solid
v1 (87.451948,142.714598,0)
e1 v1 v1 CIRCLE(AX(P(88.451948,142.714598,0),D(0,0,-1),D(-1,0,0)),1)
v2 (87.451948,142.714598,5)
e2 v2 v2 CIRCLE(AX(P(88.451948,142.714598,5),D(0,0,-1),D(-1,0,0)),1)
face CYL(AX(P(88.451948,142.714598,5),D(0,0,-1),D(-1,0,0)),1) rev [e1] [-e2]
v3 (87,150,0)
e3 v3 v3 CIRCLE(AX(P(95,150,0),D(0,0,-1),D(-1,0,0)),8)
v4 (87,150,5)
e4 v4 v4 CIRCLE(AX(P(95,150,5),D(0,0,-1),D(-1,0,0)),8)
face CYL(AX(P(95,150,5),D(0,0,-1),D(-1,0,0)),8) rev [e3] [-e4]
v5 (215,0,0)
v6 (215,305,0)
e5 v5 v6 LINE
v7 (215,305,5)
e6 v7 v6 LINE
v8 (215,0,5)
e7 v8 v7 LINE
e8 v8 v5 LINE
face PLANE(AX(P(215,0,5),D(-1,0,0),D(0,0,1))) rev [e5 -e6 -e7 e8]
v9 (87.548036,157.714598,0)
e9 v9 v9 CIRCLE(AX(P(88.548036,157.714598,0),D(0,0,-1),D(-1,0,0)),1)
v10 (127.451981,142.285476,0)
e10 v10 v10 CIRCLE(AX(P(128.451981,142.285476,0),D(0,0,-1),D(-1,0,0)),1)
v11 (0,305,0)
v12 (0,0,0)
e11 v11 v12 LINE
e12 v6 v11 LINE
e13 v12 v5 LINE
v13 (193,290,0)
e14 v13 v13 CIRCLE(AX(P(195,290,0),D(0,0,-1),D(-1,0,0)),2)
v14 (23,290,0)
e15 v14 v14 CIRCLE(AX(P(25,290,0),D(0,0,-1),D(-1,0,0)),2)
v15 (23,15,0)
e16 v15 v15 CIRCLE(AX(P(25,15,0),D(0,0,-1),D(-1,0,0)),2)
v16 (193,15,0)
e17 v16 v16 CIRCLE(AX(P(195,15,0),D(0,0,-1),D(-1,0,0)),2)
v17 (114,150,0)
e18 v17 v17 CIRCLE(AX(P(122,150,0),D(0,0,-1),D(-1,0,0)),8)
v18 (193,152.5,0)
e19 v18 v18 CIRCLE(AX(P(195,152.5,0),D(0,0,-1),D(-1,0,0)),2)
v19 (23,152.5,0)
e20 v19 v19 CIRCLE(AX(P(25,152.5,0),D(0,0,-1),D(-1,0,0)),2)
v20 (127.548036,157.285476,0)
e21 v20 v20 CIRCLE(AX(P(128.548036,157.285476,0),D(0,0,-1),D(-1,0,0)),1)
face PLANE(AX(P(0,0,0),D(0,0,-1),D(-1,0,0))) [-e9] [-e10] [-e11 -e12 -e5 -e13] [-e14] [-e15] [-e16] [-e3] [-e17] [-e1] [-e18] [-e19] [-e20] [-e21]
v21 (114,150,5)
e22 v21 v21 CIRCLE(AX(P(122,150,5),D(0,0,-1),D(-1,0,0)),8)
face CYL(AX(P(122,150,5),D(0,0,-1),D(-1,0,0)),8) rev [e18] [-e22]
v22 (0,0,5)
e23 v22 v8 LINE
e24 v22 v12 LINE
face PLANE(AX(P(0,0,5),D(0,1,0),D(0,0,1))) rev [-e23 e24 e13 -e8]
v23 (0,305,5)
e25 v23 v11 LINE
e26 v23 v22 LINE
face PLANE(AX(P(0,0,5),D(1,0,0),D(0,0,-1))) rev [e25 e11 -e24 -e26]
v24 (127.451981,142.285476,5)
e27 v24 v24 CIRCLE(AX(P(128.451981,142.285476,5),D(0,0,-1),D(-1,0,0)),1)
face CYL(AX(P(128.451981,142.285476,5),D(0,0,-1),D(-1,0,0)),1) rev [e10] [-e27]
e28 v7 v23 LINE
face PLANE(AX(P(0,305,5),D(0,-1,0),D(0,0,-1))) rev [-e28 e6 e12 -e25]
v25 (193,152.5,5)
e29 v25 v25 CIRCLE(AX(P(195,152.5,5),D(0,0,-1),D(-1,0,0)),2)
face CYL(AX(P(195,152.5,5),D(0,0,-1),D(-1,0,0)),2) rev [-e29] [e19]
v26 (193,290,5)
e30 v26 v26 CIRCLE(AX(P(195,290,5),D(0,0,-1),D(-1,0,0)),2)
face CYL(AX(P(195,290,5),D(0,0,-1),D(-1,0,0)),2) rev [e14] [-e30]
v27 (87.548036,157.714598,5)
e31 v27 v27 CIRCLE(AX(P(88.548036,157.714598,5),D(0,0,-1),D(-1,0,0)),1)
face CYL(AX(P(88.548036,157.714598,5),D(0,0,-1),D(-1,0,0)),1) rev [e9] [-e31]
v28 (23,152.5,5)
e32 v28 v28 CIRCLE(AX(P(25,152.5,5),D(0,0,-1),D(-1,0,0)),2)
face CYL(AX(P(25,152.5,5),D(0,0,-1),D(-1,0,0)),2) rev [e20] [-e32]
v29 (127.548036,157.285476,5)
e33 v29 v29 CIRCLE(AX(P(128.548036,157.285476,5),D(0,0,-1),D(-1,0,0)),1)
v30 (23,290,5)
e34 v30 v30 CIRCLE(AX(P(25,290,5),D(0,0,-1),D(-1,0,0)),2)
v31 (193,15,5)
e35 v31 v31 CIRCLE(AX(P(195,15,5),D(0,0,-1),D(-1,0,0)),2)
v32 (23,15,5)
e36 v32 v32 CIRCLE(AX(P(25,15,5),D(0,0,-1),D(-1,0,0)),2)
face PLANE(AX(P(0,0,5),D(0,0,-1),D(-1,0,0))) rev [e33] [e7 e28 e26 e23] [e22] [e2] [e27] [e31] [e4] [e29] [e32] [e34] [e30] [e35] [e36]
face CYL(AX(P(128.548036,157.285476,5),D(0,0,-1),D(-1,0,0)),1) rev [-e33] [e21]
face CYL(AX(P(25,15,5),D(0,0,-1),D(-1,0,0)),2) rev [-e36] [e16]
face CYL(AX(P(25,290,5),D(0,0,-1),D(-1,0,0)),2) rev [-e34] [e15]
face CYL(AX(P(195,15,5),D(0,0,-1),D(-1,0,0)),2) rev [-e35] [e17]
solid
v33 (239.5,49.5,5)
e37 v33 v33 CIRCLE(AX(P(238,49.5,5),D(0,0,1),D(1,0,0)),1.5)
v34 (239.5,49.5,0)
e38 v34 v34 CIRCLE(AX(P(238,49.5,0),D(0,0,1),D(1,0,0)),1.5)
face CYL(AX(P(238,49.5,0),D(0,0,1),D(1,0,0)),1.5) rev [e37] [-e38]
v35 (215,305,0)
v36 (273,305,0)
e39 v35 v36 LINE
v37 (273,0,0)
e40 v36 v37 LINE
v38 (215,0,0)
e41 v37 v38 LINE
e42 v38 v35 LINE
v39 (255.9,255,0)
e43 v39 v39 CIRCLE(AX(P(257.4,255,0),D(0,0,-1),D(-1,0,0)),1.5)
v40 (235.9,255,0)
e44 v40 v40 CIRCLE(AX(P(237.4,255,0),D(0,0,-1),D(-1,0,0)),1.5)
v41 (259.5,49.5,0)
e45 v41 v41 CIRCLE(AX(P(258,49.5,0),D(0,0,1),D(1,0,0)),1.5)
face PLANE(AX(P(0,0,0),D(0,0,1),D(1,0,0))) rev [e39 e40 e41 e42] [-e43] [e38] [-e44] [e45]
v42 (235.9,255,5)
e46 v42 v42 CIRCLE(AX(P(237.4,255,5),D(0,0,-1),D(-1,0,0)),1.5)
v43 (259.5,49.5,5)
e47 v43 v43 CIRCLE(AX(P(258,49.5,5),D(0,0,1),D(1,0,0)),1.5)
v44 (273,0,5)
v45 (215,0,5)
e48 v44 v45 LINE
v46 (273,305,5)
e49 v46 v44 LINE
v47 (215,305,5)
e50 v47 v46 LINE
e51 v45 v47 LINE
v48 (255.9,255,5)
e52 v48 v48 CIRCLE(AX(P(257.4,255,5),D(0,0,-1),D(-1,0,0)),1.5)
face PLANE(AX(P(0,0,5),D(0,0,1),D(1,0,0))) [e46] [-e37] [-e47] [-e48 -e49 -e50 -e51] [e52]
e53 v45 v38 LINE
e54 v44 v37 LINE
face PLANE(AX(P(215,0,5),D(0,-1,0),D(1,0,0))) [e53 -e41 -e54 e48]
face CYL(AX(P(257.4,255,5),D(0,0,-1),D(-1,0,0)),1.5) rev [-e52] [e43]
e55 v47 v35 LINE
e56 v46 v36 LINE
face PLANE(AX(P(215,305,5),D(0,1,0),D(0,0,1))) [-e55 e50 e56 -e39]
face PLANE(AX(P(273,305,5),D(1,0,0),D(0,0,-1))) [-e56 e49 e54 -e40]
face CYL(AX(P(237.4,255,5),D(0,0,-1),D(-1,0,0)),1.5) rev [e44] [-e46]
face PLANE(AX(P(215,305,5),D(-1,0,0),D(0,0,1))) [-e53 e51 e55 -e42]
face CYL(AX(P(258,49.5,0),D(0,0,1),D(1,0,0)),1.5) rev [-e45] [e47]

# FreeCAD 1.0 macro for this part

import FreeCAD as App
import Part
import Sketcher
from FreeCAD import Vector
Q = App.Units.Quantity


def add_polygon(sketch, points):
    """Adds a closed chain of lines whose ends are joined by coincident constraints."""
    first, n = sketch.GeometryCount, len(points)
    for a, b in zip(points, points[1:] + points[:1]):
        sketch.addGeometry(Part.LineSegment(App.Vector(*a, 0), App.Vector(*b, 0)), False)
    for i in range(n):
        sketch.addConstraint(Sketcher.Constraint("Coincident", first + i, 2, first + (i + 1) % n, 1))

doc = App.newDocument("Part")
body = doc.addObject("PartDesign::Body", "Body")

sketch1 = doc.addObject("Sketcher::SketchObject", "Sketch")
body.addObject(sketch1)
sketch1.AttachmentSupport = (doc.XY_Plane, [""])
sketch1.MapMode = "FlatFace"
add_polygon(sketch1, [(0, 305), (0, 0), (215, 0), (215, 305)])
sketch1.addConstraint(Sketcher.Constraint("Vertical", 0))
sketch1.addConstraint(Sketcher.Constraint("Horizontal", 1))
sketch1.addConstraint(Sketcher.Constraint("Vertical", 2))
sketch1.addConstraint(Sketcher.Constraint("Horizontal", 3))
sketch1.addConstraint(Sketcher.Constraint("Coincident", 0, 2, -1, 1))
sketch1.addConstraint(Sketcher.Constraint("DistanceX", 1, 1, 1, 2, Q("215 mm")))
sketch1.addConstraint(Sketcher.Constraint("DistanceY", 0, 2, 0, 1, Q("305 mm")))
pad1 = doc.addObject("PartDesign::Pad", "Pad")
body.addObject(pad1)
pad1.Profile = sketch1
pad1.Length = 5

sketch2 = doc.addObject("Sketcher::SketchObject", "Sketch001")
body.addObject(sketch2)
sketch2.AttachmentSupport = (doc.XY_Plane, [""])
sketch2.MapMode = "FlatFace"
sketch2.addGeometry(Part.Circle(Vector(195, 290, 0), Vector(0, 0, 1), 2), False)
sketch2.addGeometry(Part.Circle(Vector(25, 290, 0), Vector(0, 0, 1), 2), False)
sketch2.addGeometry(Part.Circle(Vector(25, 15, 0), Vector(0, 0, 1), 2), False)
sketch2.addGeometry(Part.Circle(Vector(195, 15, 0), Vector(0, 0, 1), 2), False)
sketch2.addGeometry(Part.Circle(Vector(195, 152.5, 0), Vector(0, 0, 1), 2), False)
sketch2.addGeometry(Part.Circle(Vector(25, 152.5, 0), Vector(0, 0, 1), 2), False)
sketch2.addConstraint(Sketcher.Constraint("Equal", 0, 1))
sketch2.addConstraint(Sketcher.Constraint("Equal", 1, 2))
sketch2.addConstraint(Sketcher.Constraint("Equal", 2, 3))
sketch2.addConstraint(Sketcher.Constraint("Equal", 3, 4))
sketch2.addConstraint(Sketcher.Constraint("Equal", 4, 5))
sketch2.addConstraint(Sketcher.Constraint("Horizontal", 0, 3, 1, 3))
sketch2.addConstraint(Sketcher.Constraint("Horizontal", 2, 3, 3, 3))
sketch2.addConstraint(Sketcher.Constraint("Horizontal", 4, 3, 5, 3))
sketch2.addConstraint(Sketcher.Constraint("Vertical", 1, 3, 2, 3))
sketch2.addConstraint(Sketcher.Constraint("Vertical", 0, 3, 3, 3))
sketch2.addConstraint(Sketcher.Constraint("Vertical", 3, 3, 4, 3))
sketch2.addConstraint(Sketcher.Constraint("Vertical", 2, 3, 5, 3))
sketch2.addConstraint(Sketcher.Constraint("Diameter", 0, Q("4 mm")))
sketch2.addConstraint(Sketcher.Constraint("DistanceX", -1, 1, 0, 3, Q("195 mm")))
sketch2.addConstraint(Sketcher.Constraint("DistanceY", -1, 1, 0, 3, Q("290 mm")))
sketch2.addConstraint(Sketcher.Constraint("DistanceX", -1, 1, 1, 3, Q("25 mm")))
sketch2.addConstraint(Sketcher.Constraint("DistanceY", -1, 1, 2, 3, Q("15 mm")))
sketch2.addConstraint(Sketcher.Constraint("DistanceY", -1, 1, 4, 3, Q("152.5 mm")))
pocket1 = doc.addObject("PartDesign::Pocket", "Pocket")
body.addObject(pocket1)
pocket1.Profile = sketch2
pocket1.Length = 5
pocket1.Reversed = True

sketch3 = doc.addObject("Sketcher::SketchObject", "Sketch002")
body.addObject(sketch3)
sketch3.AttachmentSupport = (doc.XY_Plane, [""])
sketch3.MapMode = "FlatFace"
sketch3.addGeometry(Part.Circle(Vector(122, 150, 0), Vector(0, 0, 1), 8), False)
sketch3.addGeometry(Part.Circle(Vector(95, 150, 0), Vector(0, 0, 1), 8), False)
sketch3.addConstraint(Sketcher.Constraint("Equal", 0, 1))
sketch3.addConstraint(Sketcher.Constraint("Horizontal", 0, 3, 1, 3))
sketch3.addConstraint(Sketcher.Constraint("Diameter", 0, Q("16 mm")))
sketch3.addConstraint(Sketcher.Constraint("DistanceX", -1, 1, 0, 3, Q("122 mm")))
sketch3.addConstraint(Sketcher.Constraint("DistanceY", -1, 1, 0, 3, Q("150 mm")))
sketch3.addConstraint(Sketcher.Constraint("DistanceX", -1, 1, 1, 3, Q("95 mm")))
pocket2 = doc.addObject("PartDesign::Pocket", "Pocket001")
body.addObject(pocket2)
pocket2.Profile = sketch3
pocket2.Type = "ThroughAll"
pocket2.Reversed = True

sketch4 = doc.addObject("Sketcher::SketchObject", "Sketch003")
body.addObject(sketch4)
sketch4.AttachmentSupport = (doc.XY_Plane, [""])
sketch4.MapMode = "FlatFace"
sketch4.addGeometry(Part.Circle(Vector(128.5, 157.3, 0), Vector(0, 0, 1), 1), False)
sketch4.addGeometry(Part.Circle(Vector(128.5, 142.3, 0), Vector(0, 0, 1), 1), False)
sketch4.addGeometry(Part.Circle(Vector(88.5, 157.7, 0), Vector(0, 0, 1), 1), False)
sketch4.addGeometry(Part.Circle(Vector(88.5, 142.7, 0), Vector(0, 0, 1), 1), False)
sketch4.addConstraint(Sketcher.Constraint("Equal", 0, 1))
sketch4.addConstraint(Sketcher.Constraint("Equal", 1, 2))
sketch4.addConstraint(Sketcher.Constraint("Equal", 2, 3))
sketch4.addConstraint(Sketcher.Constraint("Diameter", 0, Q("2 mm")))
sketch4.addConstraint(Sketcher.Constraint("DistanceY", 1, 3, 0, 3, Q("15 mm")))
sketch4.addConstraint(Sketcher.Constraint("DistanceX", 2, 3, 0, 3, Q("40 mm")))
sketch4.addConstraint(Sketcher.Constraint("DistanceY", 3, 3, 2, 3, Q("15 mm")))
sketch4.addConstraint(Sketcher.Constraint("DistanceY", -1, 1, 2, 3, Q("157.714598 mm")))
sketch4.addConstraint(Sketcher.Constraint("DistanceX", -1, 1, 1, 3, Q("128.451981 mm")))
sketch4.addConstraint(Sketcher.Constraint("DistanceX", 3, 3, 2, 3, Q("0.096089 mm")))
sketch4.addConstraint(Sketcher.Constraint("DistanceX", -1, 1, 0, 3, Q("128.548036 mm")))
sketch4.addConstraint(Sketcher.Constraint("DistanceY", -1, 1, 0, 3, Q("157.285476 mm")))
pocket3 = doc.addObject("PartDesign::Pocket", "Pocket002")
body.addObject(pocket3)
pocket3.Profile = sketch4
pocket3.Type = "ThroughAll"
pocket3.Reversed = True
body2 = doc.addObject("PartDesign::Body", "Body001")

sketch5 = doc.addObject("Sketcher::SketchObject", "Sketch004")
body2.addObject(sketch5)
sketch5.AttachmentSupport = (doc.getObject("XY_Plane001"), [""])
sketch5.MapMode = "FlatFace"
add_polygon(sketch5, [(273, 305), (273, 0), (215, 0), (215, 305)])
sketch5.addConstraint(Sketcher.Constraint("Vertical", 0))
sketch5.addConstraint(Sketcher.Constraint("Horizontal", 1))
sketch5.addConstraint(Sketcher.Constraint("Vertical", 2))
sketch5.addConstraint(Sketcher.Constraint("Horizontal", 3))
sketch5.addConstraint(Sketcher.Constraint("PointOnObject", 0, 2, -1))
sketch5.addConstraint(Sketcher.Constraint("DistanceX", 1, 2, 1, 1, Q("58 mm")))
sketch5.addConstraint(Sketcher.Constraint("DistanceY", 0, 2, 0, 1, Q("305 mm")))
sketch5.addConstraint(Sketcher.Constraint("DistanceX", -1, 1, 0, 2, Q("273 mm")))
pad2 = doc.addObject("PartDesign::Pad", "Pad001")
body2.addObject(pad2)
pad2.Profile = sketch5
pad2.Length = 5

sketch6 = doc.addObject("Sketcher::SketchObject", "Sketch005")
body2.addObject(sketch6)
sketch6.AttachmentSupport = (doc.getObject("XY_Plane001"), [""])
sketch6.MapMode = "FlatFace"
sketch6.addGeometry(Part.Circle(Vector(237.4, 255, 0), Vector(0, 0, 1), 1.5), False)
sketch6.addGeometry(Part.Circle(Vector(257.4, 255, 0), Vector(0, 0, 1), 1.5), False)
sketch6.addConstraint(Sketcher.Constraint("Equal", 0, 1))
sketch6.addConstraint(Sketcher.Constraint("Horizontal", 0, 3, 1, 3))
sketch6.addConstraint(Sketcher.Constraint("Diameter", 0, Q("3 mm")))
sketch6.addConstraint(Sketcher.Constraint("DistanceY", -1, 1, 0, 3, Q("255 mm")))
sketch6.addConstraint(Sketcher.Constraint("DistanceX", 0, 3, 1, 3, Q("20 mm")))
sketch6.addConstraint(Sketcher.Constraint("DistanceX", -1, 1, 0, 3, Q("237.4 mm")))
pocket4 = doc.addObject("PartDesign::Pocket", "Pocket003")
body2.addObject(pocket4)
pocket4.Profile = sketch6
pocket4.Type = "ThroughAll"
pocket4.Reversed = True

sketch7 = doc.addObject("Sketcher::SketchObject", "Sketch006")
body2.addObject(sketch7)
sketch7.AttachmentSupport = (doc.getObject("XY_Plane001"), [""])
sketch7.MapMode = "FlatFace"
sketch7.AttachmentOffset = App.Placement(Vector(0, 0, 5), App.Rotation())
sketch7.addGeometry(Part.Circle(Vector(238, 49.5, 0), Vector(0, 0, 1), 1.5), False)
sketch7.addGeometry(Part.Circle(Vector(258, 49.5, 0), Vector(0, 0, 1), 1.5), False)
sketch7.addConstraint(Sketcher.Constraint("Equal", 0, 1))
sketch7.addConstraint(Sketcher.Constraint("Horizontal", 0, 3, 1, 3))
sketch7.addConstraint(Sketcher.Constraint("Diameter", 0, Q("3 mm")))
sketch7.addConstraint(Sketcher.Constraint("DistanceX", -1, 1, 0, 3, Q("238 mm")))
sketch7.addConstraint(Sketcher.Constraint("DistanceX", -1, 1, 1, 3, Q("258 mm")))
sketch7.addConstraint(Sketcher.Constraint("DistanceY", -1, 1, 0, 3, Q("49.5 mm")))
pocket5 = doc.addObject("PartDesign::Pocket", "Pocket004")
body2.addObject(pocket5)
pocket5.Profile = sketch7
pocket5.Type = "ThroughAll"

doc.recompute()
